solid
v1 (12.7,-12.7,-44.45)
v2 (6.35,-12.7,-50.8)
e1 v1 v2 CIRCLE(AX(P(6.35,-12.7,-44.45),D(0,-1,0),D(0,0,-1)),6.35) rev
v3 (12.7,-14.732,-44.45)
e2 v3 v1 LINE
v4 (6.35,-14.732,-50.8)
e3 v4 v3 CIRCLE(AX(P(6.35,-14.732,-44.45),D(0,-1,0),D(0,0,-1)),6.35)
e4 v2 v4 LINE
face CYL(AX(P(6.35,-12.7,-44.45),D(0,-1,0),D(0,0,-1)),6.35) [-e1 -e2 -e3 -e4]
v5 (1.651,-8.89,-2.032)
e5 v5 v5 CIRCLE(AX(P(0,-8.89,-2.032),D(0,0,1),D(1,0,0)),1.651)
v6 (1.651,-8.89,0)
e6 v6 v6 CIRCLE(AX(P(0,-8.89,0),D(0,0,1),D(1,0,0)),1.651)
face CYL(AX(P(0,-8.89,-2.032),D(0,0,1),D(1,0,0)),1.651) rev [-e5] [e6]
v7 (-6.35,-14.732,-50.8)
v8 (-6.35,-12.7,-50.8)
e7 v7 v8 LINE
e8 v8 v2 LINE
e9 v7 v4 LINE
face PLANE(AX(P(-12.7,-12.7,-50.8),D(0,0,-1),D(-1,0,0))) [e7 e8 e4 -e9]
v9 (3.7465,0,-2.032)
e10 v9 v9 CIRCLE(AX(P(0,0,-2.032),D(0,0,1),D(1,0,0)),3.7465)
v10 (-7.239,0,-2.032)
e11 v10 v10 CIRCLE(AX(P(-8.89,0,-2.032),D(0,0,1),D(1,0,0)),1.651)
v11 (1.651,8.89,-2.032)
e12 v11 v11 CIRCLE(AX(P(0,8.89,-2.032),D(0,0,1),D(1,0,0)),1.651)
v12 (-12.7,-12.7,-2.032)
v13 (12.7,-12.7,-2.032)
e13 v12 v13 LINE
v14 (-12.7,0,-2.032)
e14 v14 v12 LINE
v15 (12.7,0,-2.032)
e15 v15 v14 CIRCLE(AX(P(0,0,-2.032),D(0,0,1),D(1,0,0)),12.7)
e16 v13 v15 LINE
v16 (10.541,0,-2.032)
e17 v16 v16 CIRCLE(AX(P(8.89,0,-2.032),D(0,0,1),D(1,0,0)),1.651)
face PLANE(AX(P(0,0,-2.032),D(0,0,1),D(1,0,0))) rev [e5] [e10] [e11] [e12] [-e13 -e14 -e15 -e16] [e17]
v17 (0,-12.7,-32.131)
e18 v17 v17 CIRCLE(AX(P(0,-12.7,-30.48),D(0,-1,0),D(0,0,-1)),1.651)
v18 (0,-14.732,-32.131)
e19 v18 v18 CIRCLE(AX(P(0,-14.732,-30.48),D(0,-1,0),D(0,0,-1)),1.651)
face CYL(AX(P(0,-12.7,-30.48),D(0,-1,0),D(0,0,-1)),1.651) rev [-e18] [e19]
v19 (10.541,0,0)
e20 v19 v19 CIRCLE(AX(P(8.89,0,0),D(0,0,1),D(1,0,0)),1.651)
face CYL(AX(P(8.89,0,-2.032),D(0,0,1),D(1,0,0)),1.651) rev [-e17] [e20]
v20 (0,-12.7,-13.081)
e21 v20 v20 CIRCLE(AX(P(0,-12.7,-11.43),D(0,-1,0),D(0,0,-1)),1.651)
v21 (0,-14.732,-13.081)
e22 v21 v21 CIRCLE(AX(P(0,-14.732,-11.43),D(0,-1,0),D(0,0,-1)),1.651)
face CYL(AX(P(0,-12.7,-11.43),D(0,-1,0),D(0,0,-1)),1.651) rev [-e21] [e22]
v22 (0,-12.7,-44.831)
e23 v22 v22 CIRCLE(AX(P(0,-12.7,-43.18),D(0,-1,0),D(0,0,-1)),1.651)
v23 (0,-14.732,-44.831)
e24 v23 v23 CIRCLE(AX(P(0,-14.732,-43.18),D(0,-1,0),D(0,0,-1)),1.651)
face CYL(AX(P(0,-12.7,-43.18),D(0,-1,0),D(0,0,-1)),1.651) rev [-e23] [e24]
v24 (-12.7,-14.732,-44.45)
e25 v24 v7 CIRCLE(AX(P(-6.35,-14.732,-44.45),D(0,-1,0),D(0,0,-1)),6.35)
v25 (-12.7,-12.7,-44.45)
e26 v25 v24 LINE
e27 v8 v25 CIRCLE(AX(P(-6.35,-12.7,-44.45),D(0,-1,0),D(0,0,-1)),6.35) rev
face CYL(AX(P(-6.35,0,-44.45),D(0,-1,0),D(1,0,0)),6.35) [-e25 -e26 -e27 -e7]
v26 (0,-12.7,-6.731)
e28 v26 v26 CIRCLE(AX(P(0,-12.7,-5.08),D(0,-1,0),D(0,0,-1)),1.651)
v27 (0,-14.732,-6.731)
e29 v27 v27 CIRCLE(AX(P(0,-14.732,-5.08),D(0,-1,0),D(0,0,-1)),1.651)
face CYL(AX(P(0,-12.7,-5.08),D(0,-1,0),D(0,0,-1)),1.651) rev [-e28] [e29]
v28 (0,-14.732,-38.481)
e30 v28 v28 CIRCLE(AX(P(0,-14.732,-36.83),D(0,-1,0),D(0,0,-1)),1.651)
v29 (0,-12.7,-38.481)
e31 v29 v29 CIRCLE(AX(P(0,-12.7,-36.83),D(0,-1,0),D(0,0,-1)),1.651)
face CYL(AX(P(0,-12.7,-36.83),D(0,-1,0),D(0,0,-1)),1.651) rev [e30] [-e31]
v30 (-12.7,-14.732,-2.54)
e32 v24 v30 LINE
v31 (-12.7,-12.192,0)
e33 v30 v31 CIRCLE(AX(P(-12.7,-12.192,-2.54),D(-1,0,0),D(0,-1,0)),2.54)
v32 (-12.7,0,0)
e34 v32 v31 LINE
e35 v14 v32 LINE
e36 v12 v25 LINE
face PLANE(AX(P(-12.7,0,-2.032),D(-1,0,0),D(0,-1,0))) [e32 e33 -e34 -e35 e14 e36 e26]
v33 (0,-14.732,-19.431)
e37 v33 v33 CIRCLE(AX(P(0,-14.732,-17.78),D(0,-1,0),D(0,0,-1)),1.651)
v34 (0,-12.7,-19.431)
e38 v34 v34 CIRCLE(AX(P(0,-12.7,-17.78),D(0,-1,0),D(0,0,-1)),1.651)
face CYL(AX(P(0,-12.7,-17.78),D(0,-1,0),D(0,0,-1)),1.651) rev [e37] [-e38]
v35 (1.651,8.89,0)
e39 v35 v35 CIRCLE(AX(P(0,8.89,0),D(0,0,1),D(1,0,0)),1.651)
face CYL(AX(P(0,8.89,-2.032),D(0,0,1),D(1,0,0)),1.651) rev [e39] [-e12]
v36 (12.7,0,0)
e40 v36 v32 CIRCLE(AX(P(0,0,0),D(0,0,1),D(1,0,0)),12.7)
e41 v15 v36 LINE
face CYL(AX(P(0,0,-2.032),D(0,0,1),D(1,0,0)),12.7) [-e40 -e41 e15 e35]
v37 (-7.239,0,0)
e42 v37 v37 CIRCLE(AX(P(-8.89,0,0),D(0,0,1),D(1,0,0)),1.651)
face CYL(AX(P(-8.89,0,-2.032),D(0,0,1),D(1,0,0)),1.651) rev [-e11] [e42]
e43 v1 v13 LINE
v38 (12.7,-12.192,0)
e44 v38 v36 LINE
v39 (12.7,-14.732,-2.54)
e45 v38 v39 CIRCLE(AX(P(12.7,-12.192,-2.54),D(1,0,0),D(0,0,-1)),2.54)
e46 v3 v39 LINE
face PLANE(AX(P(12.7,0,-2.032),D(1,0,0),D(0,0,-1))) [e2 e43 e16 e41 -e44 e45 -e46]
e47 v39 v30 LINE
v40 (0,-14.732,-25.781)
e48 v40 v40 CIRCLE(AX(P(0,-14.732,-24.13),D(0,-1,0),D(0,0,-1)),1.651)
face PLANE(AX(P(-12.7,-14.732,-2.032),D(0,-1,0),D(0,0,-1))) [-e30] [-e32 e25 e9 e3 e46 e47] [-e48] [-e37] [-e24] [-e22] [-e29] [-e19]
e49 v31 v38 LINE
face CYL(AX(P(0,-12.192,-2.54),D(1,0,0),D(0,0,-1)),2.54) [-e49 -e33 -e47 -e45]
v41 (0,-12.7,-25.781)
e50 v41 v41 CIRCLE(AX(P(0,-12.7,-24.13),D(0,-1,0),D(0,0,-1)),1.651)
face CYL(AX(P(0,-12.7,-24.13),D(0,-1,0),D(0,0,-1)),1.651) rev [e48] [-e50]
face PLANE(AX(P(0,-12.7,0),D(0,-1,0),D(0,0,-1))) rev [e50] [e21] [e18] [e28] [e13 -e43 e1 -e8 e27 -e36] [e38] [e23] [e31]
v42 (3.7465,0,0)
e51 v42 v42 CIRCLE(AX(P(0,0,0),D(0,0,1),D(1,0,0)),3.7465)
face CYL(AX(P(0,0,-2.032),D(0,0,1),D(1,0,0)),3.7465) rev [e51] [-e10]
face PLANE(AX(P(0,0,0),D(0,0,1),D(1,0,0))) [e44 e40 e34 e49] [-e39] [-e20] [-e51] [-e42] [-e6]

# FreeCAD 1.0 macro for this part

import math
import FreeCAD as App
import Part
import Sketcher
Q = App.Units.Quantity


def edges_at(feature, points):
    """Names of the edges that pass closest to the given points."""
    edges = feature.Shape.Edges
    near = lambda p: min(range(len(edges)), key=lambda i: edges[i].distToShape(Part.Vertex(*p))[0])
    return sorted({f"Edge{near(p) + 1}" for p in points})

doc = App.newDocument("Part")
body = doc.addObject("PartDesign::Body", "Body")

sketch1 = body.newObject("Sketcher::SketchObject", "Sketch")
sketch1.AttachmentSupport = (doc.getObject("XY_Plane"), [""])
sketch1.MapMode = "FlatFace"
sketch1.addGeometry(Part.LineSegment(App.Vector(-12.7, 0, 0), App.Vector(-12.7, -14.732, 0)), False)
sketch1.addGeometry(Part.LineSegment(App.Vector(-12.7, -14.732, 0), App.Vector(12.7, -14.732, 0)), False)
sketch1.addGeometry(Part.LineSegment(App.Vector(12.7, -14.732, 0), App.Vector(12.7, 0, 0)), False)
sketch1.addGeometry(Part.ArcOfCircle(Part.Circle(App.Vector(0, 0, 0), App.Vector(0, 0, 1), 12.7), math.radians(0), math.radians(180)), False)
sketch1.addGeometry(Part.Circle(App.Vector(0, -8.89, 0), App.Vector(0, 0, 1), 1.651), False)
sketch1.addGeometry(Part.Circle(App.Vector(-8.89, 0, 0), App.Vector(0, 0, 1), 1.651), False)
sketch1.addGeometry(Part.Circle(App.Vector(0, 0, 0), App.Vector(0, 0, 1), 3.7465), False)
sketch1.addGeometry(Part.Circle(App.Vector(8.89, 0, 0), App.Vector(0, 0, 1), 1.651), False)
sketch1.addGeometry(Part.Circle(App.Vector(0, 8.89, 0), App.Vector(0, 0, 1), 1.651), False)
sketch1.addConstraint(Sketcher.Constraint("Coincident", 0, 2, 1, 1))
sketch1.addConstraint(Sketcher.Constraint("Coincident", 1, 2, 2, 1))
sketch1.addConstraint(Sketcher.Constraint("Tangent", 2, 2, 3, 1))
sketch1.addConstraint(Sketcher.Constraint("Tangent", 3, 2, 0, 1))
sketch1.addConstraint(Sketcher.Constraint("Vertical", 0))
sketch1.addConstraint(Sketcher.Constraint("Horizontal", 1))
sketch1.addConstraint(Sketcher.Constraint("Vertical", 2))
sketch1.addConstraint(Sketcher.Constraint("Coincident", 3, 3, -1, 1))
sketch1.addConstraint(Sketcher.Constraint("Coincident", 6, 3, -1, 1))
sketch1.addConstraint(Sketcher.Constraint("Equal", 4, 5))
sketch1.addConstraint(Sketcher.Constraint("Equal", 5, 7))
sketch1.addConstraint(Sketcher.Constraint("Equal", 7, 8))
sketch1.addConstraint(Sketcher.Constraint("Symmetric", 5, 3, 7, 3, -1, 1))
sketch1.addConstraint(Sketcher.Constraint("Symmetric", 4, 3, 8, 3, -1, 1))
sketch1.addConstraint(Sketcher.Constraint("PointOnObject", 4, 3, -2))
sketch1.addConstraint(Sketcher.Constraint("PointOnObject", 5, 3, -1))
sketch1.addConstraint(Sketcher.Constraint("Radius", 3, Q("0.5 in")))
sketch1.addConstraint(Sketcher.Constraint("Diameter", 4, Q("0.13 in")))
sketch1.addConstraint(Sketcher.Constraint("Diameter", 6, Q("0.295 in")))
sketch1.addConstraint(Sketcher.Constraint("DistanceY", 0, 2, 0, 1, Q("0.58 in")))
sketch1.addConstraint(Sketcher.Constraint("DistanceX", 5, 3, 7, 3, Q("0.7 in")))
sketch1.addConstraint(Sketcher.Constraint("DistanceY", 4, 3, 8, 3, Q("0.7 in")))
pad1 = body.newObject("PartDesign::Pad", "Pad")
pad1.Profile = sketch1
pad1.Length = Q("0.08 in")
pad1.Reversed = True

sketch2 = body.newObject("Sketcher::SketchObject", "Sketch001")
sketch2.AttachmentSupport = (doc.getObject("XZ_Plane"), [""])
sketch2.MapMode = "FlatFace"
sketch2.AttachmentOffset = App.Placement(App.Vector(0, 0, 0.58 * 25.4), App.Rotation())
sketch2.addGeometry(Part.LineSegment(App.Vector(-12.7, 0, 0), App.Vector(-12.7, -50.8, 0)), False)
sketch2.addGeometry(Part.LineSegment(App.Vector(-12.7, -50.8, 0), App.Vector(12.7, -50.8, 0)), False)
sketch2.addGeometry(Part.LineSegment(App.Vector(12.7, -50.8, 0), App.Vector(12.7, 0, 0)), False)
sketch2.addGeometry(Part.LineSegment(App.Vector(12.7, 0, 0), App.Vector(-12.7, 0, 0)), False)
sketch2.addGeometry(Part.Circle(App.Vector(0, -43.18, 0), App.Vector(0, 0, 1), 1.651), False)
sketch2.addGeometry(Part.Circle(App.Vector(0, -36.83, 0), App.Vector(0, 0, 1), 1.651), False)
sketch2.addGeometry(Part.Circle(App.Vector(0, -30.48, 0), App.Vector(0, 0, 1), 1.651), False)
sketch2.addGeometry(Part.Circle(App.Vector(0, -24.13, 0), App.Vector(0, 0, 1), 1.651), False)
sketch2.addGeometry(Part.Circle(App.Vector(0, -17.78, 0), App.Vector(0, 0, 1), 1.651), False)
sketch2.addGeometry(Part.Circle(App.Vector(0, -11.43, 0), App.Vector(0, 0, 1), 1.651), False)
sketch2.addGeometry(Part.Circle(App.Vector(0, -5.08, 0), App.Vector(0, 0, 1), 1.651), False)
sketch2.addConstraint(Sketcher.Constraint("Coincident", 0, 2, 1, 1))
sketch2.addConstraint(Sketcher.Constraint("Coincident", 1, 2, 2, 1))
sketch2.addConstraint(Sketcher.Constraint("Coincident", 2, 2, 3, 1))
sketch2.addConstraint(Sketcher.Constraint("Coincident", 3, 2, 0, 1))
sketch2.addConstraint(Sketcher.Constraint("Vertical", 0))
sketch2.addConstraint(Sketcher.Constraint("Horizontal", 1))
sketch2.addConstraint(Sketcher.Constraint("Vertical", 2))
sketch2.addConstraint(Sketcher.Constraint("Horizontal", 3))
sketch2.addConstraint(Sketcher.Constraint("Equal", 4, 5))
sketch2.addConstraint(Sketcher.Constraint("Equal", 5, 6))
sketch2.addConstraint(Sketcher.Constraint("Equal", 6, 7))
sketch2.addConstraint(Sketcher.Constraint("Equal", 7, 8))
sketch2.addConstraint(Sketcher.Constraint("Equal", 8, 9))
sketch2.addConstraint(Sketcher.Constraint("Equal", 9, 10))
sketch2.addConstraint(Sketcher.Constraint("Symmetric", 2, 2, 3, 2, -1, 1))
sketch2.addConstraint(Sketcher.Constraint("PointOnObject", 4, 3, -2))
sketch2.addConstraint(Sketcher.Constraint("PointOnObject", 5, 3, -2))
sketch2.addConstraint(Sketcher.Constraint("PointOnObject", 6, 3, -2))
sketch2.addConstraint(Sketcher.Constraint("PointOnObject", 7, 3, -2))
sketch2.addConstraint(Sketcher.Constraint("PointOnObject", 8, 3, -2))
sketch2.addConstraint(Sketcher.Constraint("PointOnObject", 9, 3, -2))
sketch2.addConstraint(Sketcher.Constraint("PointOnObject", 10, 3, -2))
sketch2.addConstraint(Sketcher.Constraint("Diameter", 4, Q("0.13 in")))
sketch2.addConstraint(Sketcher.Constraint("DistanceX", 1, 1, 1, 2, Q("1 in")))
sketch2.addConstraint(Sketcher.Constraint("DistanceY", 0, 2, 0, 1, Q("2 in")))
sketch2.addConstraint(Sketcher.Constraint("DistanceY", 4, 3, 8, 3, Q("1 in")))
sketch2.addConstraint(Sketcher.Constraint("DistanceY", 5, 3, 9, 3, Q("1 in")))
sketch2.addConstraint(Sketcher.Constraint("DistanceY", 6, 3, 10, 3, Q("1 in")))
sketch2.addConstraint(Sketcher.Constraint("DistanceY", 4, 3, -1, 1, Q("1.7 in")))
sketch2.addConstraint(Sketcher.Constraint("DistanceY", 6, 3, -1, 1, Q("1.2 in")))
sketch2.addConstraint(Sketcher.Constraint("DistanceY", 5, 3, 7, 3, Q("0.5 in")))
sketch2.addConstraint(Sketcher.Constraint("DistanceY", 5, 3, -1, 1, Q("1.45 in")))
pad2 = body.newObject("PartDesign::Pad", "Pad001")
pad2.Profile = sketch2
pad2.Length = Q("0.08 in")
pad2.Reversed = True
doc.recompute()

fillet = body.newObject("PartDesign::Fillet", "Fillet")
fillet.Base = (pad2, edges_at(pad2, [(0, -14.732, 0)]))
fillet.Radius = Q("0.1 in")
doc.recompute()

fillet2 = body.newObject("PartDesign::Fillet", "Fillet001")
fillet2.Base = (fillet, edges_at(fillet, [(-12.7, -13.716, -50.8), (12.7, -13.716, -50.8)]))
fillet2.Radius = Q("0.25 in")

doc.recompute()
